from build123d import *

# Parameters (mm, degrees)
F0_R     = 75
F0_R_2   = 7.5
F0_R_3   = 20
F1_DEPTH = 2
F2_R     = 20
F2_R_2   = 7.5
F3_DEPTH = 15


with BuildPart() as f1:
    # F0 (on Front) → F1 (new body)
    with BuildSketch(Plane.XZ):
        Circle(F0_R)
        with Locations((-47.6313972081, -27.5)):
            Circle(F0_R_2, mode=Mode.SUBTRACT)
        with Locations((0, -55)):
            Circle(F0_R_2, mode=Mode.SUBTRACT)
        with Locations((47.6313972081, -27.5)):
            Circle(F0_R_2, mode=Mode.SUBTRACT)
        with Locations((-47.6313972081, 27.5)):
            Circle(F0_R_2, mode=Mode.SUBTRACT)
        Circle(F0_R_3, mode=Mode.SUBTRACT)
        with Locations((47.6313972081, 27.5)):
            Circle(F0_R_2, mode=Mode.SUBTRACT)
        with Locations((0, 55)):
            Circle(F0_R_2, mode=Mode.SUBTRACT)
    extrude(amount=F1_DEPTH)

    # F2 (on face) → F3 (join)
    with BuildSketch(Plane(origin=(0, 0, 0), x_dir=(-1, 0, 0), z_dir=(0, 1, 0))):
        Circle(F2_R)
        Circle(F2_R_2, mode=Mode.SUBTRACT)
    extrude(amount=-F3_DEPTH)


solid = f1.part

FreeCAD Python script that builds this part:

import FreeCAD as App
import Part
import Sketcher
from FreeCAD import Vector

doc = App.newDocument("Part")
params = doc.addObject("Spreadsheet::Sheet", "Params")
for row, (alias, value) in enumerate([
    ("sketch1_diameter", "150 mm"),
    ("sketch1_diameter2", "15 mm"),
    ("sketch1_diameter3", "40 mm"),
    ("pad1_length", "2 mm"),
    ("sketch2_diameter", "40 mm"),
    ("sketch2_diameter2", "15 mm"),
    ("pad2_length", "15 mm"),
], start=1):
    params.set(f"A{row}", alias)
    params.set(f"B{row}", "=" + value)
    params.setAlias(f"B{row}", alias)

body = doc.addObject("PartDesign::Body", "Body")

# Sketch on XZ plane
sketch1 = body.newObject("Sketcher::SketchObject", "Sketch")
sketch1.AttachmentSupport = (doc.getObject("XZ_Plane"), [""])
sketch1.MapMode = "FlatFace"
sketch1.addGeometry(Part.Circle(Vector(0, 0, 0), Vector(0, 0, 1), 75), False)
sketch1.addGeometry(Part.Circle(Vector(0, -55, 0), Vector(0, 0, 1), 8), False)
sketch1.addGeometry(Part.Circle(Vector(-48, -28, 0), Vector(0, 0, 1), 8), False)
sketch1.addGeometry(Part.Circle(Vector(48, -28, 0), Vector(0, 0, 1), 8), False)
sketch1.addGeometry(Part.Circle(Vector(-48, 28, 0), Vector(0, 0, 1), 8), False)
sketch1.addGeometry(Part.Circle(Vector(0, 0, 0), Vector(0, 0, 1), 20), False)
sketch1.addGeometry(Part.Circle(Vector(0, 55, 0), Vector(0, 0, 1), 8), False)
sketch1.addGeometry(Part.Circle(Vector(48, 28, 0), Vector(0, 0, 1), 8), False)
sketch1.addConstraint(Sketcher.Constraint("Coincident", 0, 3, -1, 1))
sketch1.addConstraint(Sketcher.Constraint("Coincident", 5, 3, -1, 1))
sketch1.addConstraint(Sketcher.Constraint("Equal", 1, 2))
sketch1.addConstraint(Sketcher.Constraint("Equal", 2, 3))
sketch1.addConstraint(Sketcher.Constraint("Equal", 3, 4))
sketch1.addConstraint(Sketcher.Constraint("Equal", 4, 6))
sketch1.addConstraint(Sketcher.Constraint("Equal", 6, 7))
sketch1.addConstraint(Sketcher.Constraint("Symmetric", 3, 3, 4, 3, -1, 1))
sketch1.addConstraint(Sketcher.Constraint("Symmetric", 1, 3, 6, 3, -1, 1))
sketch1.addConstraint(Sketcher.Constraint("Symmetric", 2, 3, 7, 3, -1, 1))
sketch1.addConstraint(Sketcher.Constraint("Symmetric", 2, 3, 3, 3, -2))
sketch1.addConstraint(Sketcher.Constraint("PointOnObject", 1, 3, -2))
sketch1.addConstraint(Sketcher.Constraint("Diameter", 0, 150.0))
sketch1.addConstraint(Sketcher.Constraint("Diameter", 1, 15.0))
sketch1.addConstraint(Sketcher.Constraint("Diameter", 5, 40.0))
sketch1.addConstraint(Sketcher.Constraint("DistanceY", 1, 3, -1, 1, 55.0))
sketch1.addConstraint(Sketcher.Constraint("DistanceY", 2, 3, 4, 3, 55.0))
sketch1.addConstraint(Sketcher.Constraint("DistanceX", 2, 3, -1, 1, 47.631397))
sketch1.setExpression("Constraints[12]", "Params.sketch1_diameter")
sketch1.setExpression("Constraints[13]", "Params.sketch1_diameter2")
sketch1.setExpression("Constraints[14]", "Params.sketch1_diameter3")
pad1 = body.newObject("PartDesign::Pad", "Pad")
pad1.Profile = sketch1
pad1.setExpression("Length", "Params.pad1_length")

# Sketch on XZ plane
sketch2 = body.newObject("Sketcher::SketchObject", "Sketch001")
sketch2.AttachmentSupport = (doc.getObject("XZ_Plane"), [""])
sketch2.MapMode = "FlatFace"
sketch2.addGeometry(Part.Circle(Vector(0, 0, 0), Vector(0, 0, 1), 20), False)
sketch2.addGeometry(Part.Circle(Vector(0, 0, 0), Vector(0, 0, 1), 8), False)
sketch2.addConstraint(Sketcher.Constraint("Coincident", 0, 3, -1, 1))
sketch2.addConstraint(Sketcher.Constraint("Coincident", 1, 3, -1, 1))
sketch2.addConstraint(Sketcher.Constraint("Diameter", 0, 40.0))
sketch2.addConstraint(Sketcher.Constraint("Diameter", 1, 15.0))
sketch2.setExpression("Constraints[2]", "Params.sketch2_diameter")
sketch2.setExpression("Constraints[3]", "Params.sketch2_diameter2")
pad2 = body.newObject("PartDesign::Pad", "Pad001")
pad2.Profile = sketch2
pad2.setExpression("Length", "Params.pad2_length")

doc.recompute()
